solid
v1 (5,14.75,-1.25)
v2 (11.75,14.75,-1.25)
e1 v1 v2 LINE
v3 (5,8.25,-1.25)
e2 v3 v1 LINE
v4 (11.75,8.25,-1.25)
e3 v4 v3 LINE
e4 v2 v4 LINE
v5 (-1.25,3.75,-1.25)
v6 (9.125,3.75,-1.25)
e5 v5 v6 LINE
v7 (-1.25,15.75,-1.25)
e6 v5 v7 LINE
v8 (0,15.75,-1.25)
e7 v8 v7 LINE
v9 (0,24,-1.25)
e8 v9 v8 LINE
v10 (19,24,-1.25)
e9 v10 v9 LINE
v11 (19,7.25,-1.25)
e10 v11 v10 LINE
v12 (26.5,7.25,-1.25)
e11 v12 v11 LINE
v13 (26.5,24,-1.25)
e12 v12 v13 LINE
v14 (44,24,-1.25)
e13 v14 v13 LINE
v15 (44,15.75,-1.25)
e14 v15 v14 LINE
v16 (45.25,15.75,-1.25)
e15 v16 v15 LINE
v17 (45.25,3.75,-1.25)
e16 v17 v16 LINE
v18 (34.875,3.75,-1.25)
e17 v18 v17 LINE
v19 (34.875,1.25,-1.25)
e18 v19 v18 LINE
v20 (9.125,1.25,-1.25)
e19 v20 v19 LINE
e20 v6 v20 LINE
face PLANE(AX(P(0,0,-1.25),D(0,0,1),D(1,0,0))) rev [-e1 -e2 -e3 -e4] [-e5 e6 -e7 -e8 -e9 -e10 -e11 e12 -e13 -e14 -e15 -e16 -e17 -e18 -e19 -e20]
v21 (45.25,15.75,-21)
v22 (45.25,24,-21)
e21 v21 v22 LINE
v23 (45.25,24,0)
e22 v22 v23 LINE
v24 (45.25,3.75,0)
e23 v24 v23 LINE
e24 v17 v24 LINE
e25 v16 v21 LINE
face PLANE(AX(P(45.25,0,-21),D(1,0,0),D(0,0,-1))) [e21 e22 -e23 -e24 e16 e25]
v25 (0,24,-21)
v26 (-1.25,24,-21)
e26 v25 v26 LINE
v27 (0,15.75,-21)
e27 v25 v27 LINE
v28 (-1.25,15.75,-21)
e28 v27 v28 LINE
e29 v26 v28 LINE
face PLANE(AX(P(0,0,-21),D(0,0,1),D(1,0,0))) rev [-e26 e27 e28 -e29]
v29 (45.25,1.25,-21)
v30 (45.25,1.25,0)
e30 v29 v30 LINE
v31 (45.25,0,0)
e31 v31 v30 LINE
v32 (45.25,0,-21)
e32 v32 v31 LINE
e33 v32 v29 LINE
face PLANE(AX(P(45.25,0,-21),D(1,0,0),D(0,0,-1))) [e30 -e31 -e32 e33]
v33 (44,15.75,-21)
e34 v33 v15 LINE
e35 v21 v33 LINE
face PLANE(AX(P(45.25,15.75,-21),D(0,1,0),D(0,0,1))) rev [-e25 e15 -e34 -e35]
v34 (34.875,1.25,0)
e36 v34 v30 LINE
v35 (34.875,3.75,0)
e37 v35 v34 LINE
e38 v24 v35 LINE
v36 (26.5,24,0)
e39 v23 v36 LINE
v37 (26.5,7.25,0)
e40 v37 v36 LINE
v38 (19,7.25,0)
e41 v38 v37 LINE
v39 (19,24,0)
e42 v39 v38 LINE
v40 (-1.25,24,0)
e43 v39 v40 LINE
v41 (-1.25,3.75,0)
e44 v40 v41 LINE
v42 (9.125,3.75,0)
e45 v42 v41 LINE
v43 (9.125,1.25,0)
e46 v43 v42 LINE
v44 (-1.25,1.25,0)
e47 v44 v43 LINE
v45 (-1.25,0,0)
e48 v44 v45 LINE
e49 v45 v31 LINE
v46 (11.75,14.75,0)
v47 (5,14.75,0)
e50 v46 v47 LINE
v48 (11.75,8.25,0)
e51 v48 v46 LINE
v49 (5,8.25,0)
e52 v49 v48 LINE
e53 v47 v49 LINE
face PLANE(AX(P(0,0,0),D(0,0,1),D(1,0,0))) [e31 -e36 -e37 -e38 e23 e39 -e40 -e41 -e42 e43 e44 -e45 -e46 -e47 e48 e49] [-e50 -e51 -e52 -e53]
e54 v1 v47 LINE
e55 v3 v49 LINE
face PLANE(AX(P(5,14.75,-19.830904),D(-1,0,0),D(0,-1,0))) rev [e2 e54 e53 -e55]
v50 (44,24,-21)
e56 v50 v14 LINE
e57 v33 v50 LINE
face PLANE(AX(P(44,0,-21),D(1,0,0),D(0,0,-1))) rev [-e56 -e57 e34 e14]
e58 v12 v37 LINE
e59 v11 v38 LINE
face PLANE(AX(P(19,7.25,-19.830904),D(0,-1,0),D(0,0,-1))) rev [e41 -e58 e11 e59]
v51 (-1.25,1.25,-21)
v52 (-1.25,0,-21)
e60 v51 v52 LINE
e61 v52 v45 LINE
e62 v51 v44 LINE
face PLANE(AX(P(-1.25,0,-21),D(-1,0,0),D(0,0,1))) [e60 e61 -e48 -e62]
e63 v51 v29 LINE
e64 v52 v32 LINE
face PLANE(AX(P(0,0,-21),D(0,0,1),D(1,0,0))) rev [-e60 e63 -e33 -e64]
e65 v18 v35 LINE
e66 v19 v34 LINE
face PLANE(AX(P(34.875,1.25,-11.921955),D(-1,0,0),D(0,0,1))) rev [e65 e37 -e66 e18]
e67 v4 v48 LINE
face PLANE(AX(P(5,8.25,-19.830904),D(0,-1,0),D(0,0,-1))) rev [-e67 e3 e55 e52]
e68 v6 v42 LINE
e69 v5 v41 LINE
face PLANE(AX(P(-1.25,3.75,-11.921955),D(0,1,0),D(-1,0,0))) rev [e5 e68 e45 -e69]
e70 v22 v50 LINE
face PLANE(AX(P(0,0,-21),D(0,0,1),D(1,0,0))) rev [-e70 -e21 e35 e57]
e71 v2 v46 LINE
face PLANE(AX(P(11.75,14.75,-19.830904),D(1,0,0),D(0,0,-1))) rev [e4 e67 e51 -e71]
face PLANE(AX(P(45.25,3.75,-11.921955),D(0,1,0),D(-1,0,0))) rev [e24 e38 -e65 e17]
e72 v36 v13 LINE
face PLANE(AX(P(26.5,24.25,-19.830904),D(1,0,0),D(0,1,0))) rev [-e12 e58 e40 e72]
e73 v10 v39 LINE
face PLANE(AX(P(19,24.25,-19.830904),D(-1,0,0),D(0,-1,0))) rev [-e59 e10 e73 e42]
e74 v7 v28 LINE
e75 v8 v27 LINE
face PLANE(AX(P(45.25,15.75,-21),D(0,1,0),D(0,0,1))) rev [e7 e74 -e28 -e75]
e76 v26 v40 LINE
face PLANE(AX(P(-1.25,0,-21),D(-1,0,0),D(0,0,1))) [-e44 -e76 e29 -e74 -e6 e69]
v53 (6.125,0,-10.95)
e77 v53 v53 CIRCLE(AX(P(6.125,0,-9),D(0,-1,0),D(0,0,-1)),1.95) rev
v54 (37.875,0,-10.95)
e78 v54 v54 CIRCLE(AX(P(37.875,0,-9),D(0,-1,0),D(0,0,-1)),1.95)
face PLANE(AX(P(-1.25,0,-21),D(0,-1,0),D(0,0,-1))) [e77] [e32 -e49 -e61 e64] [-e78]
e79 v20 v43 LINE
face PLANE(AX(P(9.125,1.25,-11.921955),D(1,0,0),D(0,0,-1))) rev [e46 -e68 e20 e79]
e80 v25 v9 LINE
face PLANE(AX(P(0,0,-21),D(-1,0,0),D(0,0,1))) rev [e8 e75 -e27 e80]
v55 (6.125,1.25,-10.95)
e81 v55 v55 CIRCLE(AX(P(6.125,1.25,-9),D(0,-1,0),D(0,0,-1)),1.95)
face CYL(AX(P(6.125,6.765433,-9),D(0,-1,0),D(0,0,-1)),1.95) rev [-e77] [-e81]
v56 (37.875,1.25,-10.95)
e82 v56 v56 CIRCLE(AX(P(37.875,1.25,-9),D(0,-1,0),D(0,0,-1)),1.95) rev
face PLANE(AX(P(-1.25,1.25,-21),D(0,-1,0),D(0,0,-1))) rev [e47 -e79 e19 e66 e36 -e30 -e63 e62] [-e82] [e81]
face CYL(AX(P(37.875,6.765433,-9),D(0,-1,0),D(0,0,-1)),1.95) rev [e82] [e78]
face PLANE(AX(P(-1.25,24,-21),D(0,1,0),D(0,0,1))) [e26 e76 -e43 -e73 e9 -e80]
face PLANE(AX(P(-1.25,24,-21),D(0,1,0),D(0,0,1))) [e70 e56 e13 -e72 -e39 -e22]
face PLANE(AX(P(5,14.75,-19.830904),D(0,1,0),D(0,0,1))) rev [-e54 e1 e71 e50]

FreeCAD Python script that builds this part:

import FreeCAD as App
import Part
import Sketcher
from FreeCAD import Vector
Q = App.Units.Quantity


def faces_at(feature, points):
    """Names of the faces that lie closest to the given points."""
    faces = feature.Shape.Faces
    near = lambda p: min(range(len(faces)), key=lambda i: faces[i].distToShape(Part.Vertex(*p))[0])
    return sorted({f"Face{near(p) + 1}" for p in points})


def add_polygon(sketch, points):
    """Adds a closed chain of lines whose ends are joined by coincident constraints."""
    first, n = sketch.GeometryCount, len(points)
    for a, b in zip(points, points[1:] + points[:1]):
        sketch.addGeometry(Part.LineSegment(App.Vector(*a, 0), App.Vector(*b, 0)), False)
    for i in range(n):
        sketch.addConstraint(Sketcher.Constraint("Coincident", first + i, 2, first + (i + 1) % n, 1))

doc = App.newDocument("Part")
body = doc.addObject("PartDesign::Body", "Body")

# Sketch on XY plane
sketch1 = body.newObject("Sketcher::SketchObject", "Sketch")
sketch1.AttachmentSupport = (doc.getObject("XY_Plane"), [""])
sketch1.MapMode = "FlatFace"
add_polygon(sketch1, [(-1, 24), (-1, 0), (45, 0), (45, 24)])  # lines 0-3
sketch1.addConstraint(Sketcher.Constraint("Vertical", 0))
sketch1.addConstraint(Sketcher.Constraint("Horizontal", 1))
sketch1.addConstraint(Sketcher.Constraint("Vertical", 2))
sketch1.addConstraint(Sketcher.Constraint("Horizontal", 3))
sketch1.addConstraint(Sketcher.Constraint("PointOnObject", 0, 2, -1))
sketch1.addConstraint(Sketcher.Constraint("DistanceY", 0, 2, 0, 1, Q("24 mm")))
sketch1.addConstraint(Sketcher.Constraint("DistanceX", 1, 1, 1, 2, Q("46.5 mm")))
sketch1.addConstraint(Sketcher.Constraint("DistanceX", 0, 2, -1, 1, Q("1.25 mm")))
pad1 = body.newObject("PartDesign::Pad", "Pad")
pad1.Profile = sketch1
pad1.Length = 21
pad1.Reversed = True
doc.recompute()

thickness = body.newObject("PartDesign::Thickness", "Thickness")
thickness.Base = (pad1, faces_at(pad1, [(22, 12, -21), (22, 24, -10.5)]))
thickness.Value = 1.25
thickness.Reversed = True
thickness.Join = "Intersection"

# Sketch on YZ plane
sketch2 = body.newObject("Sketcher::SketchObject", "Sketch001")
sketch2.AttachmentSupport = (doc.getObject("YZ_Plane"), [""])
sketch2.MapMode = "FlatFace"
sketch2.AttachmentOffset = App.Placement(Vector(0, 0, -1.25), App.Rotation())
add_polygon(sketch2, [(16, -21), (1, -21), (1, -1), (16, -1)])  # lines 0-3
sketch2.addConstraint(Sketcher.Constraint("Horizontal", 0))
sketch2.addConstraint(Sketcher.Constraint("Vertical", 1))
sketch2.addConstraint(Sketcher.Constraint("Horizontal", 2))
sketch2.addConstraint(Sketcher.Constraint("Vertical", 3))
sketch2.addConstraint(Sketcher.Constraint("DistanceX", 0, 2, 0, 1, Q("14.5 mm")))
sketch2.addConstraint(Sketcher.Constraint("DistanceY", 0, 2, -1, 1, Q("21 mm")))
sketch2.addConstraint(Sketcher.Constraint("DistanceY", 1, 1, 1, 2, Q("19.75 mm")))
sketch2.addConstraint(Sketcher.Constraint("DistanceX", -1, 1, 0, 2, Q("1.25 mm")))
pocket1 = body.newObject("PartDesign::Pocket", "Pocket")
pocket1.Profile = sketch2
pocket1.Type = "ThroughAll"
pocket1.Reversed = True

# Sketch on XY plane
sketch3 = body.newObject("Sketcher::SketchObject", "Sketch002")
sketch3.AttachmentSupport = (doc.getObject("XY_Plane"), [""])
sketch3.MapMode = "FlatFace"
add_polygon(sketch3, [(5, 15), (5, 8), (12, 8), (12, 15)])  # lines 0-3
add_polygon(sketch3, [(19, 24), (19, 7), (26, 7), (26, 24)])  # lines 4-7
sketch3.addConstraint(Sketcher.Constraint("Vertical", 0))
sketch3.addConstraint(Sketcher.Constraint("Horizontal", 1))
sketch3.addConstraint(Sketcher.Constraint("Vertical", 2))
sketch3.addConstraint(Sketcher.Constraint("Horizontal", 3))
sketch3.addConstraint(Sketcher.Constraint("Vertical", 4))
sketch3.addConstraint(Sketcher.Constraint("Horizontal", 5))
sketch3.addConstraint(Sketcher.Constraint("Vertical", 6))
sketch3.addConstraint(Sketcher.Constraint("Horizontal", 7))
sketch3.addConstraint(Sketcher.Constraint("DistanceY", 4, 2, 4, 1, Q("17 mm")))
sketch3.addConstraint(Sketcher.Constraint("DistanceX", 5, 1, 5, 2, Q("7.5 mm")))
sketch3.addConstraint(Sketcher.Constraint("DistanceY", 0, 2, 0, 1, Q("6.5 mm")))
sketch3.addConstraint(Sketcher.Constraint("DistanceX", -1, 1, 0, 2, Q("5 mm")))
sketch3.addConstraint(Sketcher.Constraint("DistanceX", -1, 1, 4, 2, Q("19 mm")))
sketch3.addConstraint(Sketcher.Constraint("DistanceY", 4, 2, 1, 2, Q("1 mm")))
sketch3.addConstraint(Sketcher.Constraint("DistanceX", 1, 1, 1, 2, Q("6.75 mm")))
sketch3.addConstraint(Sketcher.Constraint("DistanceY", -1, 1, 0, 2, Q("8.25 mm")))
pocket2 = body.newObject("PartDesign::Pocket", "Pocket001")
pocket2.Profile = sketch3
pocket2.Length = 1.25

# Sketch on XZ plane
sketch4 = body.newObject("Sketcher::SketchObject", "Sketch003")
sketch4.AttachmentSupport = (doc.getObject("XZ_Plane"), [""])
sketch4.MapMode = "FlatFace"
sketch4.addGeometry(Part.Circle(Vector(6.1, -9, 0), Vector(0, 0, 1), 1.9), False)
sketch4.addConstraint(Sketcher.Constraint("Diameter", 0, Q("3.9 mm")))
sketch4.addConstraint(Sketcher.Constraint("DistanceY", 0, 3, -1, 1, Q("9 mm")))
sketch4.addConstraint(Sketcher.Constraint("DistanceX", -1, 1, 0, 3, Q("6.125 mm")))
pocket3 = body.newObject("PartDesign::Pocket", "Pocket002")
pocket3.Profile = sketch4
pocket3.Type = "UpToFirst"

# Sketch on XZ plane
sketch5 = body.newObject("Sketcher::SketchObject", "Sketch004")
sketch5.AttachmentSupport = (doc.getObject("XZ_Plane"), [""])
sketch5.MapMode = "FlatFace"
sketch5.addGeometry(Part.Circle(Vector(37.9, -9, 0), Vector(0, 0, 1), 1.9), False)
sketch5.addConstraint(Sketcher.Constraint("Diameter", 0, Q("3.9 mm")))
sketch5.addConstraint(Sketcher.Constraint("DistanceY", 0, 3, -1, 1, Q("9 mm")))
sketch5.addConstraint(Sketcher.Constraint("DistanceX", -1, 1, 0, 3, Q("37.875 mm")))
pocket4 = body.newObject("PartDesign::Pocket", "Pocket003")
pocket4.Profile = sketch5
pocket4.Type = "UpToFirst"

# Sketch on XY plane
sketch6 = body.newObject("Sketcher::SketchObject", "Sketch005")
sketch6.AttachmentSupport = (doc.getObject("XY_Plane"), [""])
sketch6.MapMode = "FlatFace"
add_polygon(sketch6, [(34.9, 3.8), (34.9, 1.2), (45.2, 1.2), (45.2, 3.8)])  # lines 0-3
add_polygon(sketch6, [(-1.2, 3.8), (-1.2, 1.2), (9.1, 1.2), (9.1, 3.8)])  # lines 4-7
sketch6.addConstraint(Sketcher.Constraint("Vertical", 0))
sketch6.addConstraint(Sketcher.Constraint("Horizontal", 1))
sketch6.addConstraint(Sketcher.Constraint("Vertical", 2))
sketch6.addConstraint(Sketcher.Constraint("Horizontal", 3))
sketch6.addConstraint(Sketcher.Constraint("Vertical", 4))
sketch6.addConstraint(Sketcher.Constraint("Horizontal", 5))
sketch6.addConstraint(Sketcher.Constraint("Vertical", 6))
sketch6.addConstraint(Sketcher.Constraint("Horizontal", 7))
sketch6.addConstraint(Sketcher.Constraint("Horizontal", 1, 2, 4, 2))
sketch6.addConstraint(Sketcher.Constraint("Horizontal", 3, 2, 6, 2))
sketch6.addConstraint(Sketcher.Constraint("Equal", 3, 5))
sketch6.addConstraint(Sketcher.Constraint("DistanceY", 0, 2, 0, 1, Q("2.5 mm")))
sketch6.addConstraint(Sketcher.Constraint("DistanceX", 4, 2, 1, 2, Q("46.5 mm")))
sketch6.addConstraint(Sketcher.Constraint("DistanceX", 1, 1, 1, 2, Q("10.375 mm")))
sketch6.addConstraint(Sketcher.Constraint("DistanceY", -1, 1, 0, 2, Q("1.25 mm")))
sketch6.addConstraint(Sketcher.Constraint("DistanceX", -1, 1, 1, 2, Q("45.25 mm")))
pocket5 = body.newObject("PartDesign::Pocket", "Pocket004")
pocket5.Profile = sketch6
pocket5.Length = 1.25

doc.recompute()
